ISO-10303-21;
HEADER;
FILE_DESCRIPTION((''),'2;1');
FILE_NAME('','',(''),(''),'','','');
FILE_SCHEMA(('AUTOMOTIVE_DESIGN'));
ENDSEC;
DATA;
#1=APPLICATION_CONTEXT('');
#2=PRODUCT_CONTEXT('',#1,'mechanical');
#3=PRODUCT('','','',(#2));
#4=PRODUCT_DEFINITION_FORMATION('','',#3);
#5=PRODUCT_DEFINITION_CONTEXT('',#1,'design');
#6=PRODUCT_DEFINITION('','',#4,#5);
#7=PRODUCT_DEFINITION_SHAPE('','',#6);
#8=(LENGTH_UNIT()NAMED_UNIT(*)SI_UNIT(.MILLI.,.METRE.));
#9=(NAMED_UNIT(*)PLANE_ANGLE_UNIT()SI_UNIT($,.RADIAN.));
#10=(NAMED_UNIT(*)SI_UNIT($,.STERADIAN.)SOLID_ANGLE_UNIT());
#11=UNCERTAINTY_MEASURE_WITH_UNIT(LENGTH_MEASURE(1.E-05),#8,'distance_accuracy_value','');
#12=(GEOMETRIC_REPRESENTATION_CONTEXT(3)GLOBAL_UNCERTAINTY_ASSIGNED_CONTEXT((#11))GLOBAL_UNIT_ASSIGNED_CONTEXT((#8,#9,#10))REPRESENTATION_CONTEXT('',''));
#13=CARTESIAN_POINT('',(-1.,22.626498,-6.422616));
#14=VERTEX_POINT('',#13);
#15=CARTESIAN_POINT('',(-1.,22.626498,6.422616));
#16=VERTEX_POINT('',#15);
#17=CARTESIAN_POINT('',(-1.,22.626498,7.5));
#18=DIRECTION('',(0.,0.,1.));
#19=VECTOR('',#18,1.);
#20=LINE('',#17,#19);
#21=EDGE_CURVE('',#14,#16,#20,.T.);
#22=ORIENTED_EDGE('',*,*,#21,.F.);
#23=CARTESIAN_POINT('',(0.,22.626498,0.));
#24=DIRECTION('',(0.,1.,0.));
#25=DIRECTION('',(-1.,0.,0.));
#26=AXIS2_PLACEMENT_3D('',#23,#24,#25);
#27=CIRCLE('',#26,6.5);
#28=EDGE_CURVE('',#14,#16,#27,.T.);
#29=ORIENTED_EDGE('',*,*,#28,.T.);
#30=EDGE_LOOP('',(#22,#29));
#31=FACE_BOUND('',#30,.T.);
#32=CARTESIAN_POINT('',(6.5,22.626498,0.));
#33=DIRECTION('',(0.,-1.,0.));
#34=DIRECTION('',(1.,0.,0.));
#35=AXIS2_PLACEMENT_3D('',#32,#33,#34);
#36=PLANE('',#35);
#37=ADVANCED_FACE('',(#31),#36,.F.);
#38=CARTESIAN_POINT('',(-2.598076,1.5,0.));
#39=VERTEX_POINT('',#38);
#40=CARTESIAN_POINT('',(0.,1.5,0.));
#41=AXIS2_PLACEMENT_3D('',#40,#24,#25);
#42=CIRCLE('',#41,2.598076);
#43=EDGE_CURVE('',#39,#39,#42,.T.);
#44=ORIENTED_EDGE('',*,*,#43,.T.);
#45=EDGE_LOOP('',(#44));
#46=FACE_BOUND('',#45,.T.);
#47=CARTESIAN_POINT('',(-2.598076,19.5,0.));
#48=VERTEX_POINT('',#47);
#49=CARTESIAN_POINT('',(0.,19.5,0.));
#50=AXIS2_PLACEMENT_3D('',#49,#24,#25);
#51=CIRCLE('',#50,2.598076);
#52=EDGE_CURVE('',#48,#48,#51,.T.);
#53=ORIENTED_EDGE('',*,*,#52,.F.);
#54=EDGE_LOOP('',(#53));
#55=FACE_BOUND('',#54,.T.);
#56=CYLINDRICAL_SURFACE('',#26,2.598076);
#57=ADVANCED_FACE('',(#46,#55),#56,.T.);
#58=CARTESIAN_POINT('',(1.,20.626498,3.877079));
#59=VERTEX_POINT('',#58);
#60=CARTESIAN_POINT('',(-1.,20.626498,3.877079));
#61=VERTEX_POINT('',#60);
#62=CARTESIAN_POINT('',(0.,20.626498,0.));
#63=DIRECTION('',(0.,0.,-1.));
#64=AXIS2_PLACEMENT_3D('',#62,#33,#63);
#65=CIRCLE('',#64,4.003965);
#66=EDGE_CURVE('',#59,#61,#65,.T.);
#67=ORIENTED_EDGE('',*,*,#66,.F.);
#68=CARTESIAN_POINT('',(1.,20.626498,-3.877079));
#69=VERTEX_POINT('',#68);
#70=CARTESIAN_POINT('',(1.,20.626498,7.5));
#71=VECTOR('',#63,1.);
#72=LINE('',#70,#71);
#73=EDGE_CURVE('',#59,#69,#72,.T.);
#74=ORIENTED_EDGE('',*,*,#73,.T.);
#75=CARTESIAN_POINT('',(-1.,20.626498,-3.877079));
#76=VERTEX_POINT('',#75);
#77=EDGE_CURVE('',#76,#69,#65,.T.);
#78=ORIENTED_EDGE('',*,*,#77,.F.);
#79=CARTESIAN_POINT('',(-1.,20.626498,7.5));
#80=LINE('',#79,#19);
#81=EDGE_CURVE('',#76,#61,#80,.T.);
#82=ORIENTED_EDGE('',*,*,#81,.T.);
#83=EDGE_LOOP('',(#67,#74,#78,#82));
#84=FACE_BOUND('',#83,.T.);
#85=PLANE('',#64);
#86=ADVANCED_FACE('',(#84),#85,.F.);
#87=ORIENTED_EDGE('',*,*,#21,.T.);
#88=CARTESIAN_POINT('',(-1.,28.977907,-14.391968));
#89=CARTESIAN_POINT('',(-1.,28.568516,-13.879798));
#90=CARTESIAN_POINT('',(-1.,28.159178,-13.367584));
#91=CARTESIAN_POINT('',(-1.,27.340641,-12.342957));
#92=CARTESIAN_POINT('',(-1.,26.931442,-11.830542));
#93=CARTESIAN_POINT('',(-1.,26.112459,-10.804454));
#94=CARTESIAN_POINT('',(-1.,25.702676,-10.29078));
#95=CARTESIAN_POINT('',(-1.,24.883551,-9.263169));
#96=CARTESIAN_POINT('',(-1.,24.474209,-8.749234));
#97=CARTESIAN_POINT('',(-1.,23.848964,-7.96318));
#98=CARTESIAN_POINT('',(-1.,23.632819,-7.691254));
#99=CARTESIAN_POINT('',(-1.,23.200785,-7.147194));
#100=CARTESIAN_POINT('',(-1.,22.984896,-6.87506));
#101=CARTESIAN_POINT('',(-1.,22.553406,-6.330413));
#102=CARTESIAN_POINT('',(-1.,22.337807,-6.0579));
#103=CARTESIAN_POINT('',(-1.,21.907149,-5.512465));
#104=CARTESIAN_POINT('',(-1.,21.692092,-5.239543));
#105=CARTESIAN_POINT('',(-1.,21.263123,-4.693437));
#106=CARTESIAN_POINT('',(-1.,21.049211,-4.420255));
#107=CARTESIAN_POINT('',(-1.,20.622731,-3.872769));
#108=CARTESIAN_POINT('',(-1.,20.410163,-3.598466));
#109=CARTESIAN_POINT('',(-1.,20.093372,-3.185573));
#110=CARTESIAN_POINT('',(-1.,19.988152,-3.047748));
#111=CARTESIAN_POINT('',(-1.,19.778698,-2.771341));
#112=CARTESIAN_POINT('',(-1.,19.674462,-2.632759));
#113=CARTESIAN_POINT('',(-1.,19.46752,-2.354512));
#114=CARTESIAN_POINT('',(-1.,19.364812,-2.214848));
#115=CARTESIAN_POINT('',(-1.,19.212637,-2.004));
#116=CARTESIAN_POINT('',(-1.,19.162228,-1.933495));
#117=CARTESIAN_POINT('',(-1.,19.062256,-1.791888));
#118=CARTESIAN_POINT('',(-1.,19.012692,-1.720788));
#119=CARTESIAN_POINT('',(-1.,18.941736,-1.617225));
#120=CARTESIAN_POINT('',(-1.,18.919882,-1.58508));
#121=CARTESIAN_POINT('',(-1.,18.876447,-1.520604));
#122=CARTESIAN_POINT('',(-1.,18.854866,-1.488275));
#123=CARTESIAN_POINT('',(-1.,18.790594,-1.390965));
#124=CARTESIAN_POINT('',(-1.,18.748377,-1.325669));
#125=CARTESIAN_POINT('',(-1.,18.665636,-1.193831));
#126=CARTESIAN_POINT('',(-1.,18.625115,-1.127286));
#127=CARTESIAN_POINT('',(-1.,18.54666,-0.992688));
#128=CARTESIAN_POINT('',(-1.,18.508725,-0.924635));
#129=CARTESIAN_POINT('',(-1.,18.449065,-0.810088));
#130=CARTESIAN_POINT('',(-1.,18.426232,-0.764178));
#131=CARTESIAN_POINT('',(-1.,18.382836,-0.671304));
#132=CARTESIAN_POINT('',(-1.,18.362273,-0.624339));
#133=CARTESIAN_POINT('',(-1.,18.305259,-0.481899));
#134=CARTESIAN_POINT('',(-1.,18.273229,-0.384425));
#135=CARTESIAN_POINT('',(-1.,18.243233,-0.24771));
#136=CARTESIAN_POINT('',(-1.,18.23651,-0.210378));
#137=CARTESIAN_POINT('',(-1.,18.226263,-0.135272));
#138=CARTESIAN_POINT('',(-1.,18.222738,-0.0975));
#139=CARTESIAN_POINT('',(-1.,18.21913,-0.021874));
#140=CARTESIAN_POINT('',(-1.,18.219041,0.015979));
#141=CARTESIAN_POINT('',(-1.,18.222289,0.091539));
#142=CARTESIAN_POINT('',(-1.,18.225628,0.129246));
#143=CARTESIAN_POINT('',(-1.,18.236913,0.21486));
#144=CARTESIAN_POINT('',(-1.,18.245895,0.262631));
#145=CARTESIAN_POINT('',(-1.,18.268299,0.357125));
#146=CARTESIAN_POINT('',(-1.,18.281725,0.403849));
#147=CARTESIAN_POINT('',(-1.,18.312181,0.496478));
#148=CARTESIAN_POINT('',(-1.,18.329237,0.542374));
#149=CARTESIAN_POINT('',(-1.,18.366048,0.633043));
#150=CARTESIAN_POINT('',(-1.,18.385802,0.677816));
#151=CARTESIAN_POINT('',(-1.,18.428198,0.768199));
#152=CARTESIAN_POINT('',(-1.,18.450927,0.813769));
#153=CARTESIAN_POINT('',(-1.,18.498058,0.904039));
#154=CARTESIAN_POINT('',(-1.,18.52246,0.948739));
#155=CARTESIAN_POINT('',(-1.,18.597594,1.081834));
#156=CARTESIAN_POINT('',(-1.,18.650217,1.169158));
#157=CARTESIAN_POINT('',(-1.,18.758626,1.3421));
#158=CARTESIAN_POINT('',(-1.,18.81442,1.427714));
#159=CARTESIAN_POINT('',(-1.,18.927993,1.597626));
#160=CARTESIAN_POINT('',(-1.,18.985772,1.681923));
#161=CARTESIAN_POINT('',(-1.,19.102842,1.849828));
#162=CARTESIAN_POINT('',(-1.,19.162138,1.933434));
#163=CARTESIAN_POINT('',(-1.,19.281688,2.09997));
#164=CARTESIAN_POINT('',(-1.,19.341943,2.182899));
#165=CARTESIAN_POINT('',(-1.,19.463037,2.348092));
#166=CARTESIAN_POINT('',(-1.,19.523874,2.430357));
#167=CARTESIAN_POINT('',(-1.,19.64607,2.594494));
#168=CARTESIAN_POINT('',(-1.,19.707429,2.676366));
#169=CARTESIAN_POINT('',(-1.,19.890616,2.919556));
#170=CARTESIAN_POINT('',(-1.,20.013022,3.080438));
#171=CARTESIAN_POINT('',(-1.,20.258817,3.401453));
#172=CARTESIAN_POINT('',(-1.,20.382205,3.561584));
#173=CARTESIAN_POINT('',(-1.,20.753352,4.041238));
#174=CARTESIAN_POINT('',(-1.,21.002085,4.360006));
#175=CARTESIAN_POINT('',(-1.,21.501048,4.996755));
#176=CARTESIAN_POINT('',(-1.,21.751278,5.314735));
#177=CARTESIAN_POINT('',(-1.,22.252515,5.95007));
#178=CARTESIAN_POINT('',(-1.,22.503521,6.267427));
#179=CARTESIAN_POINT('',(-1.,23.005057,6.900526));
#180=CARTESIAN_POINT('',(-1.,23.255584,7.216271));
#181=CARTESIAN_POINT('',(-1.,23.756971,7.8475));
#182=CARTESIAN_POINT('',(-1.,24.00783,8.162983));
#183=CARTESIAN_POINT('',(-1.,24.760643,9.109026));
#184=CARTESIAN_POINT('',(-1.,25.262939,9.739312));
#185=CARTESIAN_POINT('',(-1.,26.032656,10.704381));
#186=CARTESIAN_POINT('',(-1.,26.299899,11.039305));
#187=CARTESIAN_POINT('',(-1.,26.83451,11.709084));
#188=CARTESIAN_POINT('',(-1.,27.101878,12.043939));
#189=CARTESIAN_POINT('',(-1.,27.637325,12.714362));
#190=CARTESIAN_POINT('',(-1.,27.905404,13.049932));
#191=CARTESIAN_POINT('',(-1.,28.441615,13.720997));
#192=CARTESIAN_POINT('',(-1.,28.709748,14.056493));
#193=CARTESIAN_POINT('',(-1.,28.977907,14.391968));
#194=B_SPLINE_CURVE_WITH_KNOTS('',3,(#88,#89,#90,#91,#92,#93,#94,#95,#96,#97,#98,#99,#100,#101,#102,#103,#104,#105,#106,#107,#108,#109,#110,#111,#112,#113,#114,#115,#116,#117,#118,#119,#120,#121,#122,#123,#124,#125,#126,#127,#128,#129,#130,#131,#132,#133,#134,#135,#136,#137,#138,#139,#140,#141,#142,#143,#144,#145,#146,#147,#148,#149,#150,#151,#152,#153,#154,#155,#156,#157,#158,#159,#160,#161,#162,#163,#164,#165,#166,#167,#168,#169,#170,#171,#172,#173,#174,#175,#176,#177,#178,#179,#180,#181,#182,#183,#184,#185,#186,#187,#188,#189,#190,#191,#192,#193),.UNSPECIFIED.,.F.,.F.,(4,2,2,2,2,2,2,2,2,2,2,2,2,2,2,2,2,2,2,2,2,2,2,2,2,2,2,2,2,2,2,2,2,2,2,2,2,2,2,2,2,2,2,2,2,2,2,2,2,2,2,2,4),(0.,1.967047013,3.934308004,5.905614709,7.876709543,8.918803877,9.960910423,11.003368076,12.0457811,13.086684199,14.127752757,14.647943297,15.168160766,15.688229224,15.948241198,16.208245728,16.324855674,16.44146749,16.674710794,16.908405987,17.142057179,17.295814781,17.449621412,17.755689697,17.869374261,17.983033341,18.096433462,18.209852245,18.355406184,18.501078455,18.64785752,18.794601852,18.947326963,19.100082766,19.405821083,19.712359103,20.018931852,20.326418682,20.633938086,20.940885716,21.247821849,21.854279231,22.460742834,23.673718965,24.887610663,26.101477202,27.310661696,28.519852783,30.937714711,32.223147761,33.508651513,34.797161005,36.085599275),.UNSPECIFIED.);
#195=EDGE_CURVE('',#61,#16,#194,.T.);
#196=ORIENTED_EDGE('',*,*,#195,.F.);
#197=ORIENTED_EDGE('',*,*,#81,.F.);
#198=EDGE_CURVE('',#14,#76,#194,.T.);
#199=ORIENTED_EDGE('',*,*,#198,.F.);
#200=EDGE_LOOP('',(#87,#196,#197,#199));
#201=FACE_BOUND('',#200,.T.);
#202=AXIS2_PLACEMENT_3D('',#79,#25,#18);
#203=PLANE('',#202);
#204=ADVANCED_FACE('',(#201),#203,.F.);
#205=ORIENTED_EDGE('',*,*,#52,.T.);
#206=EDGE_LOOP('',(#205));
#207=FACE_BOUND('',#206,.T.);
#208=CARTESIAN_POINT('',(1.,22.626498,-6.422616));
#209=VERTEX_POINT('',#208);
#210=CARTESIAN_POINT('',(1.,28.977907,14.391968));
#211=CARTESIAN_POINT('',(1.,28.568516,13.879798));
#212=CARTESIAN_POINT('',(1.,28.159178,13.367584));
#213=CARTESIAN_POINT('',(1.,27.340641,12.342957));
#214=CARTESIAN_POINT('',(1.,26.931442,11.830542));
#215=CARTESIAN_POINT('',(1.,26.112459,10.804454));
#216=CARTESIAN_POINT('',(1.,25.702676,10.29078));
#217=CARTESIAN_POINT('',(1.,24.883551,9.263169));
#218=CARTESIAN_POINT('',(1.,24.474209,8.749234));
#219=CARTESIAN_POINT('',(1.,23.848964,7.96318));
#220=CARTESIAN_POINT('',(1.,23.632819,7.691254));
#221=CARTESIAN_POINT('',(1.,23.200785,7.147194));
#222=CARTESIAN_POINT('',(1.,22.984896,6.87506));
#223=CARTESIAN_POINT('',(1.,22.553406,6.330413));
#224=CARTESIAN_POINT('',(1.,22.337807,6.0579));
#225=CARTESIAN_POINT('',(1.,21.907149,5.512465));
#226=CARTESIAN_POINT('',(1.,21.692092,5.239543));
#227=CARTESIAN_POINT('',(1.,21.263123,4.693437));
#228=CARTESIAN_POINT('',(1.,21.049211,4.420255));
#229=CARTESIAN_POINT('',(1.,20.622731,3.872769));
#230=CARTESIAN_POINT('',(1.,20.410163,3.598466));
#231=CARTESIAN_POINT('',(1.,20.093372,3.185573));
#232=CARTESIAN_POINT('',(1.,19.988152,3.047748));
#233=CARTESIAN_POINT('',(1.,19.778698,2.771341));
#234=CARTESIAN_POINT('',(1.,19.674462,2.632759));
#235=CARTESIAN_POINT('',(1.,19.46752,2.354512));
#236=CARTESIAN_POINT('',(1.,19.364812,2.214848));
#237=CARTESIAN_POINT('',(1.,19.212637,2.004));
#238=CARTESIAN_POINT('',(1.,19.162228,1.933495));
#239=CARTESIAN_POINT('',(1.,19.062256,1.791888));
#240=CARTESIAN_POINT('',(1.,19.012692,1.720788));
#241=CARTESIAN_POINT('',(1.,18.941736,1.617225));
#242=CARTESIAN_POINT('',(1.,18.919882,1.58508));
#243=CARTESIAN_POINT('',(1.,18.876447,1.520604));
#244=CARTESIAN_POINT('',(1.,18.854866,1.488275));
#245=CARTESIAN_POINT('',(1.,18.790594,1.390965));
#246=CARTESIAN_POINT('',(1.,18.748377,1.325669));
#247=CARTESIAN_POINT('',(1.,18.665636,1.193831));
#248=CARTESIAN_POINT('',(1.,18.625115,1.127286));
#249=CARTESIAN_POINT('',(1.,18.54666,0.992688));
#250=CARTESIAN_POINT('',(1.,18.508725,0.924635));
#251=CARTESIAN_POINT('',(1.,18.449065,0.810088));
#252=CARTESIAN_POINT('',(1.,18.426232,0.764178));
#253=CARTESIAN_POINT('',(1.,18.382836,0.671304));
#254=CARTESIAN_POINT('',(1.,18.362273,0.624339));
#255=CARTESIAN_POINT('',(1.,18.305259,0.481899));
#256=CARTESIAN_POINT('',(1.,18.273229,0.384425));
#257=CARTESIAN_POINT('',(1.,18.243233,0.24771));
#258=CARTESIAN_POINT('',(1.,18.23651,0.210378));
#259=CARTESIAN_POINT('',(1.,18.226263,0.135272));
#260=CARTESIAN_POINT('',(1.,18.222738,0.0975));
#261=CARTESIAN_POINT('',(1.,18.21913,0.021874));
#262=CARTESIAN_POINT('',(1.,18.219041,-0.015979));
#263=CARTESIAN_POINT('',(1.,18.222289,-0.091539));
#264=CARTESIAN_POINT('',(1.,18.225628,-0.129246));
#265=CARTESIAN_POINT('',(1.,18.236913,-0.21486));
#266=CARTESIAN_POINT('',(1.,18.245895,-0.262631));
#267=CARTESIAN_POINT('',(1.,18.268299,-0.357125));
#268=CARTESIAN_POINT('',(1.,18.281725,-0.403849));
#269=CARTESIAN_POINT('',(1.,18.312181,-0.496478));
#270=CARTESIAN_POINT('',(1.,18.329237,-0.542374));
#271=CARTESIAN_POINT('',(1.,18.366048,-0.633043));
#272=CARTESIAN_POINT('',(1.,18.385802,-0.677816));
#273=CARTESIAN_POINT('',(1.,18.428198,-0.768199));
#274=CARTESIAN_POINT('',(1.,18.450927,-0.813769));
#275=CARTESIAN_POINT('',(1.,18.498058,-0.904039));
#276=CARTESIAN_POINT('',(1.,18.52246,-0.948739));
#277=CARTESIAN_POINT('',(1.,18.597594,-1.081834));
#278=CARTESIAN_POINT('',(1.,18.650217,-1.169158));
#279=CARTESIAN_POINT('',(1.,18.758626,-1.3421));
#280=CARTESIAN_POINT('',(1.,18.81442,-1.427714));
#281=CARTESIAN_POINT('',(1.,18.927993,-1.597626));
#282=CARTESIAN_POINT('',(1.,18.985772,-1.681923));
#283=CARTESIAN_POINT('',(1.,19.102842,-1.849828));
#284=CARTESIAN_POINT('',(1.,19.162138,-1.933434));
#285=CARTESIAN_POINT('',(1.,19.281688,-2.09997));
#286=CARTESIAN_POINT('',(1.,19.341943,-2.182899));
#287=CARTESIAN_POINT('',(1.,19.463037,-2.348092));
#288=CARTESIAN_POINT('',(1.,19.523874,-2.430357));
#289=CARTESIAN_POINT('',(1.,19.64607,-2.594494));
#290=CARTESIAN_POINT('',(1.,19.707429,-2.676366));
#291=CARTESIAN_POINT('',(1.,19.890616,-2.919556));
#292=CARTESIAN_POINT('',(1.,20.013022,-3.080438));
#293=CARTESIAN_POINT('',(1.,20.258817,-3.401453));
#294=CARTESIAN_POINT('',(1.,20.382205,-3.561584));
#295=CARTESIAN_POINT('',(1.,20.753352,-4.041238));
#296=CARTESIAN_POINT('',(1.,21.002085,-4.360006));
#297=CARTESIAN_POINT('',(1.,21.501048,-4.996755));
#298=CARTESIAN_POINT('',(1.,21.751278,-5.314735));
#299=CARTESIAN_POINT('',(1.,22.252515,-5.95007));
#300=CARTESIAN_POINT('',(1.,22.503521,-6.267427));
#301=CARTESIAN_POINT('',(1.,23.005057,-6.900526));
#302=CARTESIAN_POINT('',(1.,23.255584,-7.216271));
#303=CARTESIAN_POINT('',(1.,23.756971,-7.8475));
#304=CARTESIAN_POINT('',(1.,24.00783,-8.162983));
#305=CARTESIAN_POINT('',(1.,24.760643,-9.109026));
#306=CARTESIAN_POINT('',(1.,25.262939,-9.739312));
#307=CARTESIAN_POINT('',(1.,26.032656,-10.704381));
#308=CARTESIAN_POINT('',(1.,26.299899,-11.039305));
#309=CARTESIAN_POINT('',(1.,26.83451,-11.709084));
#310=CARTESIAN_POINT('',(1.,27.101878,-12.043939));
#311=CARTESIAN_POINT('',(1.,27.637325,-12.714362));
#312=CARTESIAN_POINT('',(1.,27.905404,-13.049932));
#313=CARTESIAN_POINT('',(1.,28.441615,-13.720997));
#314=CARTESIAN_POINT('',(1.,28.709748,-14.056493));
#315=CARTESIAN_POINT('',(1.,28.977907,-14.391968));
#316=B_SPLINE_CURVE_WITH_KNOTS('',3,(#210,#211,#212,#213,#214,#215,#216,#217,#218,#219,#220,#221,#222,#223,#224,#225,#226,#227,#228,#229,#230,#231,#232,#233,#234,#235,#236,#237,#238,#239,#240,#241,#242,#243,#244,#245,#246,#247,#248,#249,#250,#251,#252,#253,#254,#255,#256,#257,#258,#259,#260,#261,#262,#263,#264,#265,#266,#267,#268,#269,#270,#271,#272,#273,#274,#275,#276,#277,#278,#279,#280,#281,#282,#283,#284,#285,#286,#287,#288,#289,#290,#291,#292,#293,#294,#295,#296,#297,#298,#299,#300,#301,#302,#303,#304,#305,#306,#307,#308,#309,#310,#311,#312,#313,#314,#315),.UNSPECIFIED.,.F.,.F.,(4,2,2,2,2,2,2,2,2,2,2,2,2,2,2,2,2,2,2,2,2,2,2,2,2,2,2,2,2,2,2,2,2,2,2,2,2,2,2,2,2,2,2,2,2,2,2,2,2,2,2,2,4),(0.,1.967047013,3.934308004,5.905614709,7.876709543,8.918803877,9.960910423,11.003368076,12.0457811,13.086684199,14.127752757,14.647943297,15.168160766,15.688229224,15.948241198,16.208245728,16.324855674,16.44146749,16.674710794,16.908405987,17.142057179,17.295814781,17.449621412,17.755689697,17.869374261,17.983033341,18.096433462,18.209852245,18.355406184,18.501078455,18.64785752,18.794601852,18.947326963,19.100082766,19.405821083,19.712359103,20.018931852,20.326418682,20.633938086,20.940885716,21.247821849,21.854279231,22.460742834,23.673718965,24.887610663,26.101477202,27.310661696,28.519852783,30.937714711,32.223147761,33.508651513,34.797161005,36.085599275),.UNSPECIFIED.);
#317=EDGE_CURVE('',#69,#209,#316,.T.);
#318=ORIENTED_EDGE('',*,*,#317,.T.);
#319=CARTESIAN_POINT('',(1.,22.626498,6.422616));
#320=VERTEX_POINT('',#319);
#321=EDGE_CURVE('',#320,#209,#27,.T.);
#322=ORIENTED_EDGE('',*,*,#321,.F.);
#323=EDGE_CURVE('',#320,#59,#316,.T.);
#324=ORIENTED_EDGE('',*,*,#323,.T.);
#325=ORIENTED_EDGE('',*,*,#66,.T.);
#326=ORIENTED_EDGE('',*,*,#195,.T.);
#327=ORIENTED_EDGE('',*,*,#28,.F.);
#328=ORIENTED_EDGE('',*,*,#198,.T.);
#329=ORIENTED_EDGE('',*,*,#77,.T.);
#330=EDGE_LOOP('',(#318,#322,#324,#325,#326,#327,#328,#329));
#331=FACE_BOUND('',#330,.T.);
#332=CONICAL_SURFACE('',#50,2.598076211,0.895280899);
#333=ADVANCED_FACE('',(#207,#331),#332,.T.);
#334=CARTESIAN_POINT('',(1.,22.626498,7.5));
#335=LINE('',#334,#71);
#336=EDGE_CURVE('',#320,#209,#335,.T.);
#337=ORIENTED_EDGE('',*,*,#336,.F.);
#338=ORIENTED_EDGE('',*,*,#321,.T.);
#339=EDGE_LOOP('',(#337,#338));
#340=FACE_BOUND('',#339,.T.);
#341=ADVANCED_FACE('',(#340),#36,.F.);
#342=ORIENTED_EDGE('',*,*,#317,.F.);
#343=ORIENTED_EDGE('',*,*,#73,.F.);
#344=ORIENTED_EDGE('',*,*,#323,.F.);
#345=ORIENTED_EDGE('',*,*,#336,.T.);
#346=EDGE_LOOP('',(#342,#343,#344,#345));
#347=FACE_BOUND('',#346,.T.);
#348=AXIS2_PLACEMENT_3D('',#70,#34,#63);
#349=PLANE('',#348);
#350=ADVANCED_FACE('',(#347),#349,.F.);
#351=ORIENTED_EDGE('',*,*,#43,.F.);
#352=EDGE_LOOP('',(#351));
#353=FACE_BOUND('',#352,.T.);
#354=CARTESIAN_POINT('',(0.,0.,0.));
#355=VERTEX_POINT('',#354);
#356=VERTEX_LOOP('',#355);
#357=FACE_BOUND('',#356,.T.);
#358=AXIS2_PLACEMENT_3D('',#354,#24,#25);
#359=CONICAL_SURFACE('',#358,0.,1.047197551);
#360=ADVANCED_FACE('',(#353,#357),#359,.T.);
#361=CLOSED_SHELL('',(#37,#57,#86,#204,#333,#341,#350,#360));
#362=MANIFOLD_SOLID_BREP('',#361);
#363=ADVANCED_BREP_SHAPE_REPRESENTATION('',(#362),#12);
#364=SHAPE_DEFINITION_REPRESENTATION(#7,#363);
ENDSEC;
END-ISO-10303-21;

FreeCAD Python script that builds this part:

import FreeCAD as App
import Part
import Sketcher

V = App.Vector
Q = App.Units.Quantity


def add_polygon(sketch, points):
    """Adds a closed chain of lines whose ends are joined by coincident constraints."""
    first, n = sketch.GeometryCount, len(points)
    for a, b in zip(points, points[1:] + points[:1]):
        sketch.addGeometry(Part.LineSegment(App.Vector(*a, 0), App.Vector(*b, 0)), False)
    for i in range(n):
        sketch.addConstraint(Sketcher.Constraint("Coincident", first + i, 2, first + (i + 1) % n, 1))

doc = App.newDocument("Part")
params = doc.addObject("Spreadsheet::Sheet", "Params")
for row, (alias, value) in enumerate([
    ("sketch1_height", "18 mm"),
    ("sketch1_length", "3 mm"),
    ("sketch1_length2", "5 mm"),
    ("sketch1_width", "6.5 mm"),
    ("revolution_angle", "360 deg"),
    ("sketch2_width", "2 mm"),
    ("sketch2_height", "15 mm"),
    ("pocket1_length", "2 mm"),
], start=1):
    params.set(f"A{row}", alias)
    params.set(f"B{row}", "=" + value)
    params.setAlias(f"B{row}", alias)

body = doc.addObject("PartDesign::Body", "Body")

# Sketch on XY plane
sketch1 = body.newObject("Sketcher::SketchObject", "Sketch")
sketch1.AttachmentSupport = (doc.getObject("XY_Plane"), [""])
sketch1.MapMode = "FlatFace"
add_polygon(sketch1, [(0, 0), (2.6, 1.5), (2.6, 19.5), (6.5, 22.6), (0, 22.6)])  # lines 0-4
sketch1.addConstraint([
    Sketcher.Constraint("Vertical", 1),
    Sketcher.Constraint("Horizontal", 3),
    Sketcher.Constraint("Vertical", 4),
    Sketcher.Constraint("Coincident", 4, 2, -1, 1),
    Sketcher.Constraint("DistanceY", 1, 1, 1, 2, Q("18 mm")),
    Sketcher.Constraint("Angle", 0, Q("30 deg")),
    Sketcher.Constraint("Distance", 0, Q("3 mm")),
    Sketcher.Constraint("Distance", 2, Q("5 mm")),
    Sketcher.Constraint("DistanceX", 3, 2, 3, 1, Q("6.5 mm")),
])
sketch1.setExpression("Constraints[9]", "Params.sketch1_height")
sketch1.setExpression("Constraints[11]", "Params.sketch1_length")
sketch1.setExpression("Constraints[12]", "Params.sketch1_length2")
sketch1.setExpression("Constraints[13]", "Params.sketch1_width")
revolution = body.newObject("PartDesign::Revolution", "Revolution")
revolution.Profile = sketch1
revolution.ReferenceAxis = (sketch1, ["V_Axis"])
revolution.setExpression("Angle", "Params.revolution_angle")

# Sketch on XZ plane
sketch2 = body.newObject("Sketcher::SketchObject", "Sketch001")
sketch2.AttachmentSupport = (doc.getObject("XZ_Plane"), [""])
sketch2.MapMode = "FlatFace"
sketch2.AttachmentOffset = App.Placement(V(0, 0, -22.626498), App.Rotation())
add_polygon(sketch2, [(-1, -7.5), (-1, 7.5), (1, 7.5), (1, -7.5)])  # lines 0-3
sketch2.addConstraint([
    Sketcher.Constraint("Vertical", 0),
    Sketcher.Constraint("Horizontal", 1),
    Sketcher.Constraint("Vertical", 2),
    Sketcher.Constraint("Horizontal", 3),
    Sketcher.Constraint("Symmetric", 0, 2, 2, 2, -1, 1),
    Sketcher.Constraint("DistanceX", 1, 1, 1, 2, Q("2 mm")),
    Sketcher.Constraint("DistanceY", 0, 1, 0, 2, Q("15 mm")),
])
sketch2.setExpression("Constraints[9]", "Params.sketch2_width")
sketch2.setExpression("Constraints[10]", "Params.sketch2_height")
pocket1 = body.newObject("PartDesign::Pocket", "Pocket")
pocket1.Profile = sketch2
pocket1.setExpression("Length", "Params.pocket1_length")
pocket1.Reversed = True

doc.recompute()
